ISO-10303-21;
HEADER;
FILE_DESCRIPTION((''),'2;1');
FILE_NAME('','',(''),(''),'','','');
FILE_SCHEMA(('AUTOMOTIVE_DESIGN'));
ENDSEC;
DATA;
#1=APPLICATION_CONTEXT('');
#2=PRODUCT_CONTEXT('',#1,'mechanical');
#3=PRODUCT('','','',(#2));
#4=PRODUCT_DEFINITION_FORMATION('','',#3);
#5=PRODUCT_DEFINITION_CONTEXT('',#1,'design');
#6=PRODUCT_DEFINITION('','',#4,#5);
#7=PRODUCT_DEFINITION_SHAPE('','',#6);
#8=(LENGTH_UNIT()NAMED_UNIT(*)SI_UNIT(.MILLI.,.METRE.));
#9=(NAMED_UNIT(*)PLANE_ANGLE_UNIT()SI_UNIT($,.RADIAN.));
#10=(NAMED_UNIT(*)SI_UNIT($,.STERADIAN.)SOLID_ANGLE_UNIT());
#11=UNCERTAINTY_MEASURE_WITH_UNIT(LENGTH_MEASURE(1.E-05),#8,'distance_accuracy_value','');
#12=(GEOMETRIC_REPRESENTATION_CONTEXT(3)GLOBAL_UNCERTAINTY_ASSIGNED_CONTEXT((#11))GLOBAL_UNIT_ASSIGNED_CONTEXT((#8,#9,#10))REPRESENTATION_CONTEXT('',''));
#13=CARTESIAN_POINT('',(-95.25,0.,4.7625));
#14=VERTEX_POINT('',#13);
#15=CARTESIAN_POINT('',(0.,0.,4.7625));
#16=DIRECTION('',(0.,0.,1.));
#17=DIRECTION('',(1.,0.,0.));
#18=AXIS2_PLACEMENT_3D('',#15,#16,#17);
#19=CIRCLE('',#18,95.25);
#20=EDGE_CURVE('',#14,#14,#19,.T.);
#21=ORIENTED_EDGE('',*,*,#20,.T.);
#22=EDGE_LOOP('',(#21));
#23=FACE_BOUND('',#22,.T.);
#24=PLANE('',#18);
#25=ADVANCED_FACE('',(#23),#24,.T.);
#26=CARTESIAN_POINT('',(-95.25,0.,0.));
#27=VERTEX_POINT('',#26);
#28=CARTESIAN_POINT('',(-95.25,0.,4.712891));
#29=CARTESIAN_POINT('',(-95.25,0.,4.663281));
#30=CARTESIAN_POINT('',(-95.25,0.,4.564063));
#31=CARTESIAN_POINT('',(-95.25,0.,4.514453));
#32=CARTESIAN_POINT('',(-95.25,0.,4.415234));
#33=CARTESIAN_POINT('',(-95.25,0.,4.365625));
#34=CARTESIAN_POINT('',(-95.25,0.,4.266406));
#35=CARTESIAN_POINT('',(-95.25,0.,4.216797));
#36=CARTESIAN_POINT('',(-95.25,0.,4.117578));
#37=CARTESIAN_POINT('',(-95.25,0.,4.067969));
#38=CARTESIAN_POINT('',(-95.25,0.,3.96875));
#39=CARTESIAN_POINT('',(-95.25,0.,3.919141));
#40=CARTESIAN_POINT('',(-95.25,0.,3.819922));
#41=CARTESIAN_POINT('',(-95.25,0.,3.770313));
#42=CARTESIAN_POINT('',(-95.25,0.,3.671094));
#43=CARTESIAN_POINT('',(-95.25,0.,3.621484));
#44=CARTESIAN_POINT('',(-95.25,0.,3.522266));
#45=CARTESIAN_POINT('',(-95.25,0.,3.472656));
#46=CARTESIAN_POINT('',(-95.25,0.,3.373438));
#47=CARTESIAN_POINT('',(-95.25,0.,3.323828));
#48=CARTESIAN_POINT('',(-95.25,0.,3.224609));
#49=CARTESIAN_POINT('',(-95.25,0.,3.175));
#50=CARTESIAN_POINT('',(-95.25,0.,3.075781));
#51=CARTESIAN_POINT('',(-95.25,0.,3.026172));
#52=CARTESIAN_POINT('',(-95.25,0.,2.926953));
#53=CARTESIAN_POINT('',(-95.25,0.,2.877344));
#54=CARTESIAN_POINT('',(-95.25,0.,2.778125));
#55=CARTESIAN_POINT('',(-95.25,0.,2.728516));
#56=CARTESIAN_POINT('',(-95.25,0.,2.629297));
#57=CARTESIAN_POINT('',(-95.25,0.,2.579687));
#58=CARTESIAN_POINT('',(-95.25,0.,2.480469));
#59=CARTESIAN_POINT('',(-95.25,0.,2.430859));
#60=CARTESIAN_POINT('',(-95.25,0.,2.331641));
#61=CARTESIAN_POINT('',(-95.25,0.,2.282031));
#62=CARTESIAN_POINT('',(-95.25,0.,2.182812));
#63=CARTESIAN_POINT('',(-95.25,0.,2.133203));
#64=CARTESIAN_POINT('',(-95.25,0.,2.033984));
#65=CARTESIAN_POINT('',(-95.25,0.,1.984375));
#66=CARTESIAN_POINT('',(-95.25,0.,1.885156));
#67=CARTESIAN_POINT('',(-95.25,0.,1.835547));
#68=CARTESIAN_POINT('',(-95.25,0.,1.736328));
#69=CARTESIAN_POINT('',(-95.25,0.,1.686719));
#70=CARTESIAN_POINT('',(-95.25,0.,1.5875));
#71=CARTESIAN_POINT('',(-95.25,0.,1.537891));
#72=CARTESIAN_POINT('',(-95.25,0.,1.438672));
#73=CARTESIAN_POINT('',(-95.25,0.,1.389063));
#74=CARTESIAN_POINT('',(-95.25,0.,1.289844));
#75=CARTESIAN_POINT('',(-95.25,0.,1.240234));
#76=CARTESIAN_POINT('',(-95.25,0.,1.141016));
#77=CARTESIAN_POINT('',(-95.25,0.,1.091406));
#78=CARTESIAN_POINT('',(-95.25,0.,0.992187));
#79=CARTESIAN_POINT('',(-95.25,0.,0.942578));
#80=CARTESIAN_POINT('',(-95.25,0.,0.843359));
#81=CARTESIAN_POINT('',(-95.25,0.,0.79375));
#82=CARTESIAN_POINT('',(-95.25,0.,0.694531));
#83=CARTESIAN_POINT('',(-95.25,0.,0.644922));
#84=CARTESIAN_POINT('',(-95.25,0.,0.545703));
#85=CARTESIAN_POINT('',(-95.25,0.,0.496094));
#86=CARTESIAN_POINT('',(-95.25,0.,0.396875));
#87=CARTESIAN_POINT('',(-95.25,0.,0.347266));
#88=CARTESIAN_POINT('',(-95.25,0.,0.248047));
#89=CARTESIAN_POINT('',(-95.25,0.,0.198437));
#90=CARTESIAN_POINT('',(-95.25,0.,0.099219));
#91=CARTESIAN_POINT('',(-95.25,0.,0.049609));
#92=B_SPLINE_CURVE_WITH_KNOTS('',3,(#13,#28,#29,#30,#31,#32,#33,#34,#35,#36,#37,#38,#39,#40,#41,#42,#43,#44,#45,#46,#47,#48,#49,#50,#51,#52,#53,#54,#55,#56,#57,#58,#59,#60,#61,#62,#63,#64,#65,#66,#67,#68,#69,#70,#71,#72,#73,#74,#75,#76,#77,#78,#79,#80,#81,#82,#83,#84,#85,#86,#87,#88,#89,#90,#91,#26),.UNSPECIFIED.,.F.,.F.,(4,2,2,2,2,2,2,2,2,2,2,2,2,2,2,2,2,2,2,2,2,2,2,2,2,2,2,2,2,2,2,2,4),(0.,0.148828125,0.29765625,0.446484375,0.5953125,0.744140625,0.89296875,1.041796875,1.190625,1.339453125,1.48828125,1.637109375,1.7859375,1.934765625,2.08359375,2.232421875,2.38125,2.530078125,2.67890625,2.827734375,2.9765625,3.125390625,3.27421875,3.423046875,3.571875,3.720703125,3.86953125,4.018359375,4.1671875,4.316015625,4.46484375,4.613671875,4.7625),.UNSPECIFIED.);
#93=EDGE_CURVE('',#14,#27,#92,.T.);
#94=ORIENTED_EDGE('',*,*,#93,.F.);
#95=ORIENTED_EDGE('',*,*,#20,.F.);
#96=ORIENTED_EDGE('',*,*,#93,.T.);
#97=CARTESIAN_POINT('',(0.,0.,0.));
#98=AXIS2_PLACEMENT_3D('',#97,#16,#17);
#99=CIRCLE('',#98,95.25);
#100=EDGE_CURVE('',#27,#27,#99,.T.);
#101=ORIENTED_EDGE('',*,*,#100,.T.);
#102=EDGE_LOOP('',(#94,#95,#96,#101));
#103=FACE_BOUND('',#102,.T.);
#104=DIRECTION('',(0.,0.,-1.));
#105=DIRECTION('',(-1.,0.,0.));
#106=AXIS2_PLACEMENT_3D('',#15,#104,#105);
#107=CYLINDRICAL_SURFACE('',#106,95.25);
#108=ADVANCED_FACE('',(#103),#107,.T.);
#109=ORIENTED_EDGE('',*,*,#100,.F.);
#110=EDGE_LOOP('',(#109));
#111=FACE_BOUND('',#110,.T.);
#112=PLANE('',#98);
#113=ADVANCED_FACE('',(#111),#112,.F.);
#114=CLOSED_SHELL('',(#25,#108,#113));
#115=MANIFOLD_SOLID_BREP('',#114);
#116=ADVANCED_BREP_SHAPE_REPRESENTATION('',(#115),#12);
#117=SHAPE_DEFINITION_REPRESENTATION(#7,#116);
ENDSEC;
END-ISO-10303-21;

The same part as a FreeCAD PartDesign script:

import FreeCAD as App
import Part
import Sketcher
from FreeCAD import Vector
Q = App.Units.Quantity

doc = App.newDocument("Part")
body = doc.addObject("PartDesign::Body", "Body")

sketch1 = body.newObject("Sketcher::SketchObject", "Sketch")
sketch1.AttachmentSupport = (doc.getObject("XY_Plane"), [""])
sketch1.MapMode = "FlatFace"
sketch1.addGeometry(Part.Circle(Vector(0, 0, 0), Vector(0, 0, 1), 95.25), False)
sketch1.addConstraint([
    Sketcher.Constraint("Coincident", 0, 3, -1, 1),
    Sketcher.Constraint("Diameter", 0, Q("7.5 in")),
])
pad1 = body.newObject("PartDesign::Pad", "Pad")
pad1.Profile = sketch1
pad1.Length = Q("0.1875 in")

doc.recompute()
